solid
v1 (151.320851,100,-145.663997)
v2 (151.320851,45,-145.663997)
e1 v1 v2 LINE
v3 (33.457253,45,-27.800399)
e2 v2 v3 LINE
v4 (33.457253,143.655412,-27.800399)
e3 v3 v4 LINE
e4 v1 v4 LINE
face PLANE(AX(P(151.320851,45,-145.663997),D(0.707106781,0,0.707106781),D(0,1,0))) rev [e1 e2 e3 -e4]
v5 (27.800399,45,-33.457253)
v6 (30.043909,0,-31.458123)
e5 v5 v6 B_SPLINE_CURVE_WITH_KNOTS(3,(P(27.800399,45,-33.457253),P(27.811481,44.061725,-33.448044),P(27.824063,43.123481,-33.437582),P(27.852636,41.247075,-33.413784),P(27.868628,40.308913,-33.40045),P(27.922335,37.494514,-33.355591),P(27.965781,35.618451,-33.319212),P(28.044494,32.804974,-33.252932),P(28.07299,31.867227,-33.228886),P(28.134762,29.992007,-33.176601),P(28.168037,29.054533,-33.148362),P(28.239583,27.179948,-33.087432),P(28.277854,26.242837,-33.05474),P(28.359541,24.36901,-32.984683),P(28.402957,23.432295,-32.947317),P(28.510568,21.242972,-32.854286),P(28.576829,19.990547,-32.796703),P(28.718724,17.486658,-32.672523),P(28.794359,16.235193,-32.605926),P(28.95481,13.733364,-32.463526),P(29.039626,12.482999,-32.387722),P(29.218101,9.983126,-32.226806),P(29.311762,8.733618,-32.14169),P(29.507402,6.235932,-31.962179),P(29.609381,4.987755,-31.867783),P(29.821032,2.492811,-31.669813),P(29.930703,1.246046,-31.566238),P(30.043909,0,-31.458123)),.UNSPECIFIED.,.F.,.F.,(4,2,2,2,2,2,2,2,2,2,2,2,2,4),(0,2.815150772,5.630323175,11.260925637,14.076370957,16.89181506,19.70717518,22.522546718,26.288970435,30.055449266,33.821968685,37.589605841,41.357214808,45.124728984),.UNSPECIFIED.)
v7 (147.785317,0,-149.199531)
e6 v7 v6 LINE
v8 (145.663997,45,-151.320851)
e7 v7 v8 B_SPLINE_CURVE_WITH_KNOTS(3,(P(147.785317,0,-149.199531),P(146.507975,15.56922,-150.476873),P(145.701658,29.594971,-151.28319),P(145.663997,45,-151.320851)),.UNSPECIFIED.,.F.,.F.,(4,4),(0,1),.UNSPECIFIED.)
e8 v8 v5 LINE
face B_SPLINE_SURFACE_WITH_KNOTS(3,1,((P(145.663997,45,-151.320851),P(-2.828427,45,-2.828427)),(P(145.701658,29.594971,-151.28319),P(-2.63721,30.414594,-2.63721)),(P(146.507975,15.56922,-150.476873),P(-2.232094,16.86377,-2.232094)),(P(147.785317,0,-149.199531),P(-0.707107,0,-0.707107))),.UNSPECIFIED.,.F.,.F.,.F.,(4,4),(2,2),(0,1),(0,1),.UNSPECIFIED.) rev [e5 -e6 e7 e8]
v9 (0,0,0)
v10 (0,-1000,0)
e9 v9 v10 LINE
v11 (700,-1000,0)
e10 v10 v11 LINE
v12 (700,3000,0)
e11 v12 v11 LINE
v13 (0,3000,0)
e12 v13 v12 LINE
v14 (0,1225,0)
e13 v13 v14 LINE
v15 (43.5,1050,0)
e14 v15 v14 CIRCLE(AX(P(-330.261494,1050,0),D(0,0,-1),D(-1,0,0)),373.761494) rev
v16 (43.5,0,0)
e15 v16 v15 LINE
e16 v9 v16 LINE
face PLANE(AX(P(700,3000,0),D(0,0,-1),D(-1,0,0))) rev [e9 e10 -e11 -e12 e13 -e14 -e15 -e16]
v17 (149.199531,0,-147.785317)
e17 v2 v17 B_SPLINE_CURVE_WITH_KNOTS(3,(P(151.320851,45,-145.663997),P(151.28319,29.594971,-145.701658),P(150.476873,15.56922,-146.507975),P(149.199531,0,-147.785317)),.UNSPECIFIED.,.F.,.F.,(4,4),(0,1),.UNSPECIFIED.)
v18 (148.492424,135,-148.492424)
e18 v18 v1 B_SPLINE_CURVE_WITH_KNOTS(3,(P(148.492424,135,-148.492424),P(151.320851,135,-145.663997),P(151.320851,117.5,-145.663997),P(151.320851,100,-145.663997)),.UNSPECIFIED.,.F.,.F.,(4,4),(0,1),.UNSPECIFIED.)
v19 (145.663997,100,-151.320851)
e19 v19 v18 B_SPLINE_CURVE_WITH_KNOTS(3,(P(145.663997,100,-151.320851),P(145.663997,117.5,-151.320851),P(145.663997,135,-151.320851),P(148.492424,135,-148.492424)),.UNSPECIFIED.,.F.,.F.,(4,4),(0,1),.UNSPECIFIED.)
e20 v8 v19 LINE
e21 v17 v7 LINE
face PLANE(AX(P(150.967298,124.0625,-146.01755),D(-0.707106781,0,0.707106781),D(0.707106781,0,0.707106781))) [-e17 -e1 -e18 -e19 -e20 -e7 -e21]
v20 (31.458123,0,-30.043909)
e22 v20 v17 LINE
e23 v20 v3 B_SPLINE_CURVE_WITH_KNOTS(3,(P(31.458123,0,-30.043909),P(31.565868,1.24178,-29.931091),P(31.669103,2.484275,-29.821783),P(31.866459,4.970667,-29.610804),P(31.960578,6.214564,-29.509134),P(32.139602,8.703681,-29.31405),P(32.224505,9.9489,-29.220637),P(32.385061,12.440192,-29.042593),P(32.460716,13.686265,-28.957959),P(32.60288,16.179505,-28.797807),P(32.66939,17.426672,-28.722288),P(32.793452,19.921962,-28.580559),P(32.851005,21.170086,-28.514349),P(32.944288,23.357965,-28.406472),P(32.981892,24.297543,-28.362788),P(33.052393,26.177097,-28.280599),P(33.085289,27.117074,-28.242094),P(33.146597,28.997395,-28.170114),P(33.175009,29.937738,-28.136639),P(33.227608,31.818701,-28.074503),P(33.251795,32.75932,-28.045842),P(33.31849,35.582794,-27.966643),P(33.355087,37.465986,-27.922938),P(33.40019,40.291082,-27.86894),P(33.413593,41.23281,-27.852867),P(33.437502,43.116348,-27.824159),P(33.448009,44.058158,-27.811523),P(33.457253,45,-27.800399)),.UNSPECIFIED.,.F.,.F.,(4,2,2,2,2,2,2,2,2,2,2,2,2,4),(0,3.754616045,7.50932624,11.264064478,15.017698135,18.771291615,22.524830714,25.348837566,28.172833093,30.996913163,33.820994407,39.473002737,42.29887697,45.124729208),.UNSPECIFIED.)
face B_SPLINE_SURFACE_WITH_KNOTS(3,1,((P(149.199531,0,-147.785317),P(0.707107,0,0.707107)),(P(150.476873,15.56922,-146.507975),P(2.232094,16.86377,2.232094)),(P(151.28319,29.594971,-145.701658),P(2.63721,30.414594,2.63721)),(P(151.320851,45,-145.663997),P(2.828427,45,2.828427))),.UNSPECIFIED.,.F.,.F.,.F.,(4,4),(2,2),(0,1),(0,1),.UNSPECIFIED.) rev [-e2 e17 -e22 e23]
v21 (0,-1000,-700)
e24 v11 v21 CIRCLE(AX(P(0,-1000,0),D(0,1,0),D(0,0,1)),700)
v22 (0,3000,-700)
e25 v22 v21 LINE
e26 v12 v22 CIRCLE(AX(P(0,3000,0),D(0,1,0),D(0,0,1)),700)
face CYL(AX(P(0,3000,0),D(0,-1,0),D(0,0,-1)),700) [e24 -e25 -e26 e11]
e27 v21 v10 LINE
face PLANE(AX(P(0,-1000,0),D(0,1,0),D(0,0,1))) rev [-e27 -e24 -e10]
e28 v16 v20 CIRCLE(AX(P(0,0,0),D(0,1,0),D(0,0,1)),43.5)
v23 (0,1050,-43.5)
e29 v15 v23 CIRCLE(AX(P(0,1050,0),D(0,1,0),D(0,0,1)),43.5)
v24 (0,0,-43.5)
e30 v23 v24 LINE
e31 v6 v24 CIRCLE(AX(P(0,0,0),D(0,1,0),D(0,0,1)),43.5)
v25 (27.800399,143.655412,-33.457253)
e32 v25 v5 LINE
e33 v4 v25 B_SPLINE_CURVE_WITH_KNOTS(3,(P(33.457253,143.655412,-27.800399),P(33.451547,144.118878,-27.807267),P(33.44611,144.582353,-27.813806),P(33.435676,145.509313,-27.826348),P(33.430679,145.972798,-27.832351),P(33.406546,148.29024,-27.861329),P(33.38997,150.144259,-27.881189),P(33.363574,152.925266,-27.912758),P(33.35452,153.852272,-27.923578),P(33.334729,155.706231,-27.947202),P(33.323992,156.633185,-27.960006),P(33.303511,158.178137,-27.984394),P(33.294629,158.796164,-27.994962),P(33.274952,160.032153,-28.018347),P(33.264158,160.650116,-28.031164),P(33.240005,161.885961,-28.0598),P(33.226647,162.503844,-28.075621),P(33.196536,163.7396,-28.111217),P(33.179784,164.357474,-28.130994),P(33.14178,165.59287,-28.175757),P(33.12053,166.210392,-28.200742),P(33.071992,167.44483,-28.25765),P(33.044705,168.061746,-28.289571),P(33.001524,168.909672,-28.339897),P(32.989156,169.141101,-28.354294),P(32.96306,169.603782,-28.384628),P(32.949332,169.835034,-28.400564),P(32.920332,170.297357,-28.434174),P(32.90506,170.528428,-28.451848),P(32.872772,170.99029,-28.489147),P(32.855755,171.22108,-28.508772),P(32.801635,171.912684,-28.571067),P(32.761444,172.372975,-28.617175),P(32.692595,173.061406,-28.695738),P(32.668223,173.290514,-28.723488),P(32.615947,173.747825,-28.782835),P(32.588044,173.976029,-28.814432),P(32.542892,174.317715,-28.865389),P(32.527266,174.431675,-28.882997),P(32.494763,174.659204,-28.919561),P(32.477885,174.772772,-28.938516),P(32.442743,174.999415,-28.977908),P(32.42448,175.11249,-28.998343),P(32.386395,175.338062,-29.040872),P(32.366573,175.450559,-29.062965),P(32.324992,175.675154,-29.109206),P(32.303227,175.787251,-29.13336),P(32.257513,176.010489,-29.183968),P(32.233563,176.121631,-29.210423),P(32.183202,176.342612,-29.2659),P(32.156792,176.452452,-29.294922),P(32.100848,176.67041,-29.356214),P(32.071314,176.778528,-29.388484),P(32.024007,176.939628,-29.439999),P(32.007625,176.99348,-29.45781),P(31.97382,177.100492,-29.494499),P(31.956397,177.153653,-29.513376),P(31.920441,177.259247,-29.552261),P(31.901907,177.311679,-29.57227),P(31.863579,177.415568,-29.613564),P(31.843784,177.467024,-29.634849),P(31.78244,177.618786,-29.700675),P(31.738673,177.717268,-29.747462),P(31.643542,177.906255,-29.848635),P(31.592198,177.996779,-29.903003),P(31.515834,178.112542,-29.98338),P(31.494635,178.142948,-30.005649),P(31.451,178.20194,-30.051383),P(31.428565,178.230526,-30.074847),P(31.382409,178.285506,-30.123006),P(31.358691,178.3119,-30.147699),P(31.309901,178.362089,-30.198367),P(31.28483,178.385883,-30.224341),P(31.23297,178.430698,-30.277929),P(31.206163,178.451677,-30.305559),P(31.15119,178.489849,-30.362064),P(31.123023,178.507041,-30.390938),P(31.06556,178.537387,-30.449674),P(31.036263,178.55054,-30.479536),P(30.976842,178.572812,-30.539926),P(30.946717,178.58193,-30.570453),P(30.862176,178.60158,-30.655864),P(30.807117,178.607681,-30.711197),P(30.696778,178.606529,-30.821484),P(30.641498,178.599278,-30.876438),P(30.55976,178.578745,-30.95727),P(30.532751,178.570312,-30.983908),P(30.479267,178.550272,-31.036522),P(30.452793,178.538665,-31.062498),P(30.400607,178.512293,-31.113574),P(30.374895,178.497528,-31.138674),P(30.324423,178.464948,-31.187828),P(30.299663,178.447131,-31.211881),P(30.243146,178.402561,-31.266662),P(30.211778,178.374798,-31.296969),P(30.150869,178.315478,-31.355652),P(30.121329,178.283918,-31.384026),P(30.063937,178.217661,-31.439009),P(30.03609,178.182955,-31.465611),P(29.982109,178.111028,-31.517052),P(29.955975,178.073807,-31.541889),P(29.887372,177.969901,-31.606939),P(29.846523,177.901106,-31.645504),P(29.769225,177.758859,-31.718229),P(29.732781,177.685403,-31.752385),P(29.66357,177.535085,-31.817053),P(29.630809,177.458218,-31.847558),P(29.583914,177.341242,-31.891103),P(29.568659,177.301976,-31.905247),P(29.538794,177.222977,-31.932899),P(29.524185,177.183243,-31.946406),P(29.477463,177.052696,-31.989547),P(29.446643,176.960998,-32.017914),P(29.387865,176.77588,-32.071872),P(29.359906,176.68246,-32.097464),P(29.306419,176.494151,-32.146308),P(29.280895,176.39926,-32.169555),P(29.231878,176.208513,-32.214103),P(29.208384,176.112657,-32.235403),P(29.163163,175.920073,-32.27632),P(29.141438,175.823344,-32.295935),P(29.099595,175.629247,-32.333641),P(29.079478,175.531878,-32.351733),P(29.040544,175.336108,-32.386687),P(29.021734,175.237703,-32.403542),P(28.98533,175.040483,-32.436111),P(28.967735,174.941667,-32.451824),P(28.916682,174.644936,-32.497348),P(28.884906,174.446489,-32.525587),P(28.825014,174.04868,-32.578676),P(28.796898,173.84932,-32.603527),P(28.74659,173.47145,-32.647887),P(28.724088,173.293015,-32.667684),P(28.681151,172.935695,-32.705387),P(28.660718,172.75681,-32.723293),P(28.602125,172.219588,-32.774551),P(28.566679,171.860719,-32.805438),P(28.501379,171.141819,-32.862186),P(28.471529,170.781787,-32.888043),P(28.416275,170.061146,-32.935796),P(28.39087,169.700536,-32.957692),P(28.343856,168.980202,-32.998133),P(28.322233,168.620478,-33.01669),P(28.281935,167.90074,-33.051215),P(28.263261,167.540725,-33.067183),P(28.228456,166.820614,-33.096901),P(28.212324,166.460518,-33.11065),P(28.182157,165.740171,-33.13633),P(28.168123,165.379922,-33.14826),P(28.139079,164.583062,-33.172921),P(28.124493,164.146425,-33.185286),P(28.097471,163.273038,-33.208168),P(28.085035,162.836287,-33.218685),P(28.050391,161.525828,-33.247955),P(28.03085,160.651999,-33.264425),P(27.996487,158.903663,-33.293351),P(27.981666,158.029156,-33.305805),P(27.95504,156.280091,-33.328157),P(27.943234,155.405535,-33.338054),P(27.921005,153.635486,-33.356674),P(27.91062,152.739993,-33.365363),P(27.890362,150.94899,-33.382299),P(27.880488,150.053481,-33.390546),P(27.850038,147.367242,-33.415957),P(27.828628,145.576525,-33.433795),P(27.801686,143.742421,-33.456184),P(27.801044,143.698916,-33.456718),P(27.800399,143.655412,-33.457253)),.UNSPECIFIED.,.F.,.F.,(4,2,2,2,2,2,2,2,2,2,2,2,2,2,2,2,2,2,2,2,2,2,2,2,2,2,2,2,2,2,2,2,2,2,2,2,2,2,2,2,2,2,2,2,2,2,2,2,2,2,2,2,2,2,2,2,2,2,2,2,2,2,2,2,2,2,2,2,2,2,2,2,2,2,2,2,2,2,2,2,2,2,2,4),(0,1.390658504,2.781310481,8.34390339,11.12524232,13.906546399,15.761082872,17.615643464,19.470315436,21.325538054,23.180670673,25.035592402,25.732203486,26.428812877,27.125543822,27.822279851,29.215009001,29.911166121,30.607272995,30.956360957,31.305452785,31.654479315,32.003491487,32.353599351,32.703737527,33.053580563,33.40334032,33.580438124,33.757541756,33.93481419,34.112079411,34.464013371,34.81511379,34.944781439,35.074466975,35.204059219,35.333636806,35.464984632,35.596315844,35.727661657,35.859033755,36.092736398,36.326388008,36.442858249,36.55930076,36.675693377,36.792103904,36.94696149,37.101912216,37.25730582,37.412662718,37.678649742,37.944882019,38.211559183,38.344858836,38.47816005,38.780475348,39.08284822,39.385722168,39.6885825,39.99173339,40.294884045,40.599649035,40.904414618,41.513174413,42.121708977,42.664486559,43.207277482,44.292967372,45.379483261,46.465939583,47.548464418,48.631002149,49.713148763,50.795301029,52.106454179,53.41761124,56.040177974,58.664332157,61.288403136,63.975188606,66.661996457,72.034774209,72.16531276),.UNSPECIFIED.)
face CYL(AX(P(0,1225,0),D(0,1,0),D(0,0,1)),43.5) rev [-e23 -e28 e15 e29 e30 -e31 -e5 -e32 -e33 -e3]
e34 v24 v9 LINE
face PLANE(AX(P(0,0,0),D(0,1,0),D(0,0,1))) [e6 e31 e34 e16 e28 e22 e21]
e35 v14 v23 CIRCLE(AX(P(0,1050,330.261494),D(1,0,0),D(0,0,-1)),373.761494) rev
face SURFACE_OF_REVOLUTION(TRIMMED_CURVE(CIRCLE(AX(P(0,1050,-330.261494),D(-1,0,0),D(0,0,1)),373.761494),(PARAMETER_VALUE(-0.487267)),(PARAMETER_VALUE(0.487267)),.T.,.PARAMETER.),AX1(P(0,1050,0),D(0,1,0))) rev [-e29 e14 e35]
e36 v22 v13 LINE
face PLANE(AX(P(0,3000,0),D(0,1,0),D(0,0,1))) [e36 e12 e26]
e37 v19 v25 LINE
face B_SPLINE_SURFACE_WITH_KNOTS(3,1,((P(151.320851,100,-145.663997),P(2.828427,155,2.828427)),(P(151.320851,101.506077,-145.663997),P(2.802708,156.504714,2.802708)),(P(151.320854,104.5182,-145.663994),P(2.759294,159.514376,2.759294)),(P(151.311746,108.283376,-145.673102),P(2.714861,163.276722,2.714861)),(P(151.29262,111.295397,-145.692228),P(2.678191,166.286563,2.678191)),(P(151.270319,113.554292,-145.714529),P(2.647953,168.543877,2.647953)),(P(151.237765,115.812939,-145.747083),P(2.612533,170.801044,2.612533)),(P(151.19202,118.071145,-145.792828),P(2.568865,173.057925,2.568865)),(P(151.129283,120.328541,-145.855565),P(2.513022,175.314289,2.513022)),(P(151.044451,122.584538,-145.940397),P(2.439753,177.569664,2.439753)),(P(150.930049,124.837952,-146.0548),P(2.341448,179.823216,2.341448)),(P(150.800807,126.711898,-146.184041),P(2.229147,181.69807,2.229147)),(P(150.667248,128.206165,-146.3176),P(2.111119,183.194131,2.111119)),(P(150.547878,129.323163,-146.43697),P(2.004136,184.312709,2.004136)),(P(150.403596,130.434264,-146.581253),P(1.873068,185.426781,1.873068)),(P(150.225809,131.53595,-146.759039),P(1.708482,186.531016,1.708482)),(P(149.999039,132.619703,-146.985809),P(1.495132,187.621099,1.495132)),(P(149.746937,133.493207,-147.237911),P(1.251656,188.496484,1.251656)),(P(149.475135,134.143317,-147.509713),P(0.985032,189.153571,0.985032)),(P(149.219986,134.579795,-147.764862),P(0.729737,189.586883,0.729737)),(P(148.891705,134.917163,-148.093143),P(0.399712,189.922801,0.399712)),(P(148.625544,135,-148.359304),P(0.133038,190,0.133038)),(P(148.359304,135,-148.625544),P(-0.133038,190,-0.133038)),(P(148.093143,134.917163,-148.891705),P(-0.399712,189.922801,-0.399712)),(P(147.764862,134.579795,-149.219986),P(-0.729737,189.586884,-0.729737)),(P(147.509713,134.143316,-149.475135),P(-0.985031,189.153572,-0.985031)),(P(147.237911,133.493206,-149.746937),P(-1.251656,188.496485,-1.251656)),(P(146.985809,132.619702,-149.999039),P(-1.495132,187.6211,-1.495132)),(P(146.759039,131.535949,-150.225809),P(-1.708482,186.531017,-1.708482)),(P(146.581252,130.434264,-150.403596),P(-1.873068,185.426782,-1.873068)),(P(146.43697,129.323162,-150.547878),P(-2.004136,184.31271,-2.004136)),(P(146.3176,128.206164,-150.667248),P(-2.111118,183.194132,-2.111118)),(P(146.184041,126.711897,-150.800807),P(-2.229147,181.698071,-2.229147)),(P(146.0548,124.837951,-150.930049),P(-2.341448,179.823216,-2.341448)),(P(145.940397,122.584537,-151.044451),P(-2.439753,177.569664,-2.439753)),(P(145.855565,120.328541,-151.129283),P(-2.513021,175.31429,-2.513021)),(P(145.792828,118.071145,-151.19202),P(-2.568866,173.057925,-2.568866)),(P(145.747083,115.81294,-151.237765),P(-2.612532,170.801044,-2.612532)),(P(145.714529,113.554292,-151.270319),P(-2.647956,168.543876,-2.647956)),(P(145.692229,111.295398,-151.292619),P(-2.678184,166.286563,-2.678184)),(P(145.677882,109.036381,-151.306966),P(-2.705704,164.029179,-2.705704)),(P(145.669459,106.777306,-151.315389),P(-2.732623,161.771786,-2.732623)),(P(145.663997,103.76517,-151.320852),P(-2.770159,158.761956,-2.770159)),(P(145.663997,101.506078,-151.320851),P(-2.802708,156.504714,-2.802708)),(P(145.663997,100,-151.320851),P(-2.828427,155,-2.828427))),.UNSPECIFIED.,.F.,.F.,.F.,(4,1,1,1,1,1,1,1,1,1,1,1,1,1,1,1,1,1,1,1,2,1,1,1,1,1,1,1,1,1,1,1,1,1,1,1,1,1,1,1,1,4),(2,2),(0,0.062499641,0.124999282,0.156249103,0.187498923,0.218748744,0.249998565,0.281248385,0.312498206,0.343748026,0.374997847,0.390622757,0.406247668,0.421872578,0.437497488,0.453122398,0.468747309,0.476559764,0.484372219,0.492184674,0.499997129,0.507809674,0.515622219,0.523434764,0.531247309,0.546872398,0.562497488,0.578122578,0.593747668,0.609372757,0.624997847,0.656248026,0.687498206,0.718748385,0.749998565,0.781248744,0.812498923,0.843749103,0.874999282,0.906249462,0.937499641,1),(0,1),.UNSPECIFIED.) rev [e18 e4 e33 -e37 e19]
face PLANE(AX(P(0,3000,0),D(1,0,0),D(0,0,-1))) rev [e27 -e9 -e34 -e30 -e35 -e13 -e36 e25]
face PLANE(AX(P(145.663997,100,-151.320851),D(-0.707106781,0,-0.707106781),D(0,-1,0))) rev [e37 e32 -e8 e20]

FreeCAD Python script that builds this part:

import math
import FreeCAD as App
import Part
import Sketcher
from FreeCAD import Vector

doc = App.newDocument("Part")
params = doc.addObject("Spreadsheet::Sheet", "Params")
for row, (alias, value) in enumerate([
    ("sketch1_radius", "700 mm"),
    ("pad1_length", "3000 mm"),
    ("sketch2_radius", "700 mm"),
    ("pad2_length", "1000 mm"),
    ("sketch3_height", "1050 mm"),
    ("sketch3_height2", "1225 mm"),
    ("sketch3_width", "43.5 mm"),
    ("groove_angle", "360 deg"),
], start=1):
    params.set(f"A{row}", alias)
    params.set(f"B{row}", "=" + value)
    params.setAlias(f"B{row}", alias)

body = doc.addObject("PartDesign::Body", "Body")

# Sketch on XZ plane
sketch1 = body.newObject("Sketcher::SketchObject", "Sketch")
sketch1.AttachmentSupport = (doc.getObject("XZ_Plane"), [""])
sketch1.MapMode = "FlatFace"
sketch1.addGeometry([
    Part.LineSegment(Vector(0, 0, 0), Vector(700, 0, 0)),
    Part.ArcOfCircle(Part.Circle(Vector(0, 0, 0), Vector(0, 0, 1), 700), math.radians(-90), math.radians(0)),
    Part.LineSegment(Vector(0, -700, 0), Vector(0, 0, 0)),
], False)
sketch1.addConstraint([
    Sketcher.Constraint("Coincident", 0, 2, 1, 2),
    Sketcher.Constraint("Coincident", 1, 1, 2, 1),
    Sketcher.Constraint("Coincident", 2, 2, 0, 1),
    Sketcher.Constraint("Horizontal", 0),
    Sketcher.Constraint("Vertical", 2),
    Sketcher.Constraint("Coincident", 1, 3, -1, 1),
    Sketcher.Constraint("Coincident", 2, 2, -1, 1),
    Sketcher.Constraint("Radius", 1, 700.0),
])
sketch1.setExpression("Constraints[7]", "Params.sketch1_radius")
pad1 = body.newObject("PartDesign::Pad", "Pad")
pad1.Profile = sketch1
pad1.setExpression("Length", "Params.pad1_length")
pad1.Reversed = True

# Sketch on XZ plane
sketch2 = body.newObject("Sketcher::SketchObject", "Sketch001")
sketch2.AttachmentSupport = (doc.getObject("XZ_Plane"), [""])
sketch2.MapMode = "FlatFace"
sketch2.AttachmentOffset = App.Placement(Vector(0, 0, 1000), App.Rotation())
sketch2.addGeometry([
    Part.LineSegment(Vector(0, 0, 0), Vector(700, 0, 0)),
    Part.ArcOfCircle(Part.Circle(Vector(0, 0, 0), Vector(0, 0, 1), 700), math.radians(-90), math.radians(0)),
    Part.LineSegment(Vector(0, -700, 0), Vector(0, 0, 0)),
], False)
sketch2.addConstraint([
    Sketcher.Constraint("Coincident", 0, 2, 1, 2),
    Sketcher.Constraint("Coincident", 1, 1, 2, 1),
    Sketcher.Constraint("Coincident", 2, 2, 0, 1),
    Sketcher.Constraint("Horizontal", 0),
    Sketcher.Constraint("Vertical", 2),
    Sketcher.Constraint("Coincident", 1, 3, -1, 1),
    Sketcher.Constraint("Coincident", 2, 2, -1, 1),
    Sketcher.Constraint("Radius", 1, 700.0),
])
sketch2.setExpression("Constraints[7]", "Params.sketch2_radius")
pad2 = body.newObject("PartDesign::Pad", "Pad001")
pad2.Profile = sketch2
pad2.setExpression("Length", "Params.pad2_length")
pad2.Reversed = True

# Sketch on XY plane
sketch3 = body.newObject("Sketcher::SketchObject", "Sketch002")
sketch3.AttachmentSupport = (doc.getObject("XY_Plane"), [""])
sketch3.MapMode = "FlatFace"
sketch3.addGeometry([
    Part.LineSegment(Vector(0, 0, 0), Vector(43.5, 0, 0)),
    Part.LineSegment(Vector(43.5, 0, 0), Vector(43.5, 1050, 0)),
    Part.ArcOfCircle(Part.Circle(Vector(-330.261494, 1050, 0), Vector(0, 0, 1), 373.761494), math.radians(0), math.radians(27.918363)),
    Part.LineSegment(Vector(0, 1225, 0), Vector(0, 0, 0)),
], False)
sketch3.addConstraint([
    Sketcher.Constraint("Coincident", 0, 2, 1, 1),
    Sketcher.Constraint("Tangent", 1, 2, 2, 1),
    Sketcher.Constraint("Coincident", 2, 2, 3, 1),
    Sketcher.Constraint("Coincident", 3, 2, 0, 1),
    Sketcher.Constraint("Horizontal", 0),
    Sketcher.Constraint("Vertical", 1),
    Sketcher.Constraint("Vertical", 3),
    Sketcher.Constraint("Coincident", 3, 2, -1, 1),
    Sketcher.Constraint("DistanceY", 1, 1, 1, 2, 1050.0),
    Sketcher.Constraint("DistanceY", 3, 2, 3, 1, 1225.0),
    Sketcher.Constraint("DistanceX", 0, 1, 0, 2, 43.5),
])
sketch3.setExpression("Constraints[8]", "Params.sketch3_height")
sketch3.setExpression("Constraints[9]", "Params.sketch3_height2")
sketch3.setExpression("Constraints[10]", "Params.sketch3_width")
groove = body.newObject("PartDesign::Groove", "Groove")
groove.Profile = sketch3
groove.ReferenceAxis = (sketch3, ["V_Axis"])
groove.setExpression("Angle", "Params.groove_angle")

# Sketch on an angled plane
sketch4 = body.newObject("Sketcher::SketchObject", "Sketch003")
sketch4.Placement = App.Placement(Vector(148.492424, 0, -148.492424), App.Rotation(Vector(-0.707106781, 0, -0.707106781), Vector(0, 0.999999999, 0), Vector(0.707106781, 0, -0.707106781), "ZXY"))
sketch4.addGeometry([
    Part.LineSegment(Vector(-1, 0, 0), Vector(1, 0, 0)),  # 0
    Part.BSplineCurve([Vector(1, 0, 0), Vector(2.806434, 15.56922, 0), Vector(3.946739, 29.594971, 0), Vector(4, 45, 0)], [4, 4], [0, 1], False, 3, [1, 1, 1, 1], False),  # 1
    Part.LineSegment(Vector(4, 45, 0), Vector(4, 100, 0)),  # 2
    Part.BSplineCurve([Vector(4, 100, 0), Vector(4, 117.5, 0), Vector(4, 135, 0), Vector(-4, 135, 0), Vector(-4, 117.5, 0), Vector(-4, 100, 0)], [4, 2, 4], [0, 1, 2], False, 3, [1, 1, 1, 1, 1, 1], False),  # 3
    Part.LineSegment(Vector(-4, 100, 0), Vector(-4, 45, 0)),  # 4
    Part.BSplineCurve([Vector(-1, 0, 0), Vector(-2.806434, 15.56922, 0), Vector(-3.946739, 29.594971, 0), Vector(-4, 45, 0)], [4, 4], [0, 1], False, 3, [1, 1, 1, 1], False),  # 5
], False)
sketch4.addConstraint([
    Sketcher.Constraint("Block", 1),
    Sketcher.Constraint("Block", 3),
    Sketcher.Constraint("Block", 5),
    Sketcher.Constraint("Coincident", 0, 2, 1, 1),
    Sketcher.Constraint("Coincident", 1, 2, 2, 1),
    Sketcher.Constraint("Coincident", 2, 2, 3, 1),
    Sketcher.Constraint("Coincident", 3, 2, 4, 1),
    Sketcher.Constraint("Coincident", 4, 2, 5, 2),
    Sketcher.Constraint("Coincident", 5, 1, 0, 1),
])

# Sketch on an angled plane
sketch5 = body.newObject("Sketcher::SketchObject", "Sketch004")
sketch5.Placement = App.Placement(Vector(0, 0, 0), App.Rotation(Vector(-0.707106781, 0, -0.707106781), Vector(0, 0.999999999, 0), Vector(0.707106781, 0, -0.707106781), "ZXY"))
sketch5.addGeometry([
    Part.LineSegment(Vector(4, 45, 0), Vector(4, 155, 0)),  # 0
    Part.BSplineCurve([Vector(4, 155, 0), Vector(3.55588, 173.373397, 0), Vector(4, 190, 0), Vector(-4, 190, 0), Vector(-3.55588, 173.373397, 0), Vector(-4, 155, 0)], [4, 2, 4], [0, 1, 2], False, 3, [1, 1, 1, 1, 1, 1], False),  # 1
    Part.LineSegment(Vector(-4, 155, 0), Vector(-4, 45, 0)),  # 2
    Part.BSplineCurve([Vector(-1, 0, 0), Vector(-3.156658, 16.86377, 0), Vector(-3.729578, 30.414594, 0), Vector(-4, 45, 0)], [4, 4], [0, 1], False, 3, [1, 1, 1, 1], False),  # 3
    Part.LineSegment(Vector(-1, 0, 0), Vector(1, 0, 0)),  # 4
    Part.BSplineCurve([Vector(1, 0, 0), Vector(3.156658, 16.86377, 0), Vector(3.729578, 30.414594, 0), Vector(4, 45, 0)], [4, 4], [0, 1], False, 3, [1, 1, 1, 1], False),  # 5
], False)
sketch5.addConstraint([
    Sketcher.Constraint("Block", 1),
    Sketcher.Constraint("Block", 3),
    Sketcher.Constraint("Block", 5),
    Sketcher.Constraint("Coincident", 0, 2, 1, 1),
    Sketcher.Constraint("Coincident", 1, 2, 2, 1),
    Sketcher.Constraint("Coincident", 2, 2, 3, 2),
    Sketcher.Constraint("Coincident", 3, 1, 4, 1),
    Sketcher.Constraint("Coincident", 4, 2, 5, 1),
    Sketcher.Constraint("Coincident", 5, 2, 0, 1),
])

subtractiveloft = body.newObject("PartDesign::SubtractiveLoft", "SubtractiveLoft")
subtractiveloft.Profile = sketch4
subtractiveloft.Sections = [sketch5]

doc.recompute()
